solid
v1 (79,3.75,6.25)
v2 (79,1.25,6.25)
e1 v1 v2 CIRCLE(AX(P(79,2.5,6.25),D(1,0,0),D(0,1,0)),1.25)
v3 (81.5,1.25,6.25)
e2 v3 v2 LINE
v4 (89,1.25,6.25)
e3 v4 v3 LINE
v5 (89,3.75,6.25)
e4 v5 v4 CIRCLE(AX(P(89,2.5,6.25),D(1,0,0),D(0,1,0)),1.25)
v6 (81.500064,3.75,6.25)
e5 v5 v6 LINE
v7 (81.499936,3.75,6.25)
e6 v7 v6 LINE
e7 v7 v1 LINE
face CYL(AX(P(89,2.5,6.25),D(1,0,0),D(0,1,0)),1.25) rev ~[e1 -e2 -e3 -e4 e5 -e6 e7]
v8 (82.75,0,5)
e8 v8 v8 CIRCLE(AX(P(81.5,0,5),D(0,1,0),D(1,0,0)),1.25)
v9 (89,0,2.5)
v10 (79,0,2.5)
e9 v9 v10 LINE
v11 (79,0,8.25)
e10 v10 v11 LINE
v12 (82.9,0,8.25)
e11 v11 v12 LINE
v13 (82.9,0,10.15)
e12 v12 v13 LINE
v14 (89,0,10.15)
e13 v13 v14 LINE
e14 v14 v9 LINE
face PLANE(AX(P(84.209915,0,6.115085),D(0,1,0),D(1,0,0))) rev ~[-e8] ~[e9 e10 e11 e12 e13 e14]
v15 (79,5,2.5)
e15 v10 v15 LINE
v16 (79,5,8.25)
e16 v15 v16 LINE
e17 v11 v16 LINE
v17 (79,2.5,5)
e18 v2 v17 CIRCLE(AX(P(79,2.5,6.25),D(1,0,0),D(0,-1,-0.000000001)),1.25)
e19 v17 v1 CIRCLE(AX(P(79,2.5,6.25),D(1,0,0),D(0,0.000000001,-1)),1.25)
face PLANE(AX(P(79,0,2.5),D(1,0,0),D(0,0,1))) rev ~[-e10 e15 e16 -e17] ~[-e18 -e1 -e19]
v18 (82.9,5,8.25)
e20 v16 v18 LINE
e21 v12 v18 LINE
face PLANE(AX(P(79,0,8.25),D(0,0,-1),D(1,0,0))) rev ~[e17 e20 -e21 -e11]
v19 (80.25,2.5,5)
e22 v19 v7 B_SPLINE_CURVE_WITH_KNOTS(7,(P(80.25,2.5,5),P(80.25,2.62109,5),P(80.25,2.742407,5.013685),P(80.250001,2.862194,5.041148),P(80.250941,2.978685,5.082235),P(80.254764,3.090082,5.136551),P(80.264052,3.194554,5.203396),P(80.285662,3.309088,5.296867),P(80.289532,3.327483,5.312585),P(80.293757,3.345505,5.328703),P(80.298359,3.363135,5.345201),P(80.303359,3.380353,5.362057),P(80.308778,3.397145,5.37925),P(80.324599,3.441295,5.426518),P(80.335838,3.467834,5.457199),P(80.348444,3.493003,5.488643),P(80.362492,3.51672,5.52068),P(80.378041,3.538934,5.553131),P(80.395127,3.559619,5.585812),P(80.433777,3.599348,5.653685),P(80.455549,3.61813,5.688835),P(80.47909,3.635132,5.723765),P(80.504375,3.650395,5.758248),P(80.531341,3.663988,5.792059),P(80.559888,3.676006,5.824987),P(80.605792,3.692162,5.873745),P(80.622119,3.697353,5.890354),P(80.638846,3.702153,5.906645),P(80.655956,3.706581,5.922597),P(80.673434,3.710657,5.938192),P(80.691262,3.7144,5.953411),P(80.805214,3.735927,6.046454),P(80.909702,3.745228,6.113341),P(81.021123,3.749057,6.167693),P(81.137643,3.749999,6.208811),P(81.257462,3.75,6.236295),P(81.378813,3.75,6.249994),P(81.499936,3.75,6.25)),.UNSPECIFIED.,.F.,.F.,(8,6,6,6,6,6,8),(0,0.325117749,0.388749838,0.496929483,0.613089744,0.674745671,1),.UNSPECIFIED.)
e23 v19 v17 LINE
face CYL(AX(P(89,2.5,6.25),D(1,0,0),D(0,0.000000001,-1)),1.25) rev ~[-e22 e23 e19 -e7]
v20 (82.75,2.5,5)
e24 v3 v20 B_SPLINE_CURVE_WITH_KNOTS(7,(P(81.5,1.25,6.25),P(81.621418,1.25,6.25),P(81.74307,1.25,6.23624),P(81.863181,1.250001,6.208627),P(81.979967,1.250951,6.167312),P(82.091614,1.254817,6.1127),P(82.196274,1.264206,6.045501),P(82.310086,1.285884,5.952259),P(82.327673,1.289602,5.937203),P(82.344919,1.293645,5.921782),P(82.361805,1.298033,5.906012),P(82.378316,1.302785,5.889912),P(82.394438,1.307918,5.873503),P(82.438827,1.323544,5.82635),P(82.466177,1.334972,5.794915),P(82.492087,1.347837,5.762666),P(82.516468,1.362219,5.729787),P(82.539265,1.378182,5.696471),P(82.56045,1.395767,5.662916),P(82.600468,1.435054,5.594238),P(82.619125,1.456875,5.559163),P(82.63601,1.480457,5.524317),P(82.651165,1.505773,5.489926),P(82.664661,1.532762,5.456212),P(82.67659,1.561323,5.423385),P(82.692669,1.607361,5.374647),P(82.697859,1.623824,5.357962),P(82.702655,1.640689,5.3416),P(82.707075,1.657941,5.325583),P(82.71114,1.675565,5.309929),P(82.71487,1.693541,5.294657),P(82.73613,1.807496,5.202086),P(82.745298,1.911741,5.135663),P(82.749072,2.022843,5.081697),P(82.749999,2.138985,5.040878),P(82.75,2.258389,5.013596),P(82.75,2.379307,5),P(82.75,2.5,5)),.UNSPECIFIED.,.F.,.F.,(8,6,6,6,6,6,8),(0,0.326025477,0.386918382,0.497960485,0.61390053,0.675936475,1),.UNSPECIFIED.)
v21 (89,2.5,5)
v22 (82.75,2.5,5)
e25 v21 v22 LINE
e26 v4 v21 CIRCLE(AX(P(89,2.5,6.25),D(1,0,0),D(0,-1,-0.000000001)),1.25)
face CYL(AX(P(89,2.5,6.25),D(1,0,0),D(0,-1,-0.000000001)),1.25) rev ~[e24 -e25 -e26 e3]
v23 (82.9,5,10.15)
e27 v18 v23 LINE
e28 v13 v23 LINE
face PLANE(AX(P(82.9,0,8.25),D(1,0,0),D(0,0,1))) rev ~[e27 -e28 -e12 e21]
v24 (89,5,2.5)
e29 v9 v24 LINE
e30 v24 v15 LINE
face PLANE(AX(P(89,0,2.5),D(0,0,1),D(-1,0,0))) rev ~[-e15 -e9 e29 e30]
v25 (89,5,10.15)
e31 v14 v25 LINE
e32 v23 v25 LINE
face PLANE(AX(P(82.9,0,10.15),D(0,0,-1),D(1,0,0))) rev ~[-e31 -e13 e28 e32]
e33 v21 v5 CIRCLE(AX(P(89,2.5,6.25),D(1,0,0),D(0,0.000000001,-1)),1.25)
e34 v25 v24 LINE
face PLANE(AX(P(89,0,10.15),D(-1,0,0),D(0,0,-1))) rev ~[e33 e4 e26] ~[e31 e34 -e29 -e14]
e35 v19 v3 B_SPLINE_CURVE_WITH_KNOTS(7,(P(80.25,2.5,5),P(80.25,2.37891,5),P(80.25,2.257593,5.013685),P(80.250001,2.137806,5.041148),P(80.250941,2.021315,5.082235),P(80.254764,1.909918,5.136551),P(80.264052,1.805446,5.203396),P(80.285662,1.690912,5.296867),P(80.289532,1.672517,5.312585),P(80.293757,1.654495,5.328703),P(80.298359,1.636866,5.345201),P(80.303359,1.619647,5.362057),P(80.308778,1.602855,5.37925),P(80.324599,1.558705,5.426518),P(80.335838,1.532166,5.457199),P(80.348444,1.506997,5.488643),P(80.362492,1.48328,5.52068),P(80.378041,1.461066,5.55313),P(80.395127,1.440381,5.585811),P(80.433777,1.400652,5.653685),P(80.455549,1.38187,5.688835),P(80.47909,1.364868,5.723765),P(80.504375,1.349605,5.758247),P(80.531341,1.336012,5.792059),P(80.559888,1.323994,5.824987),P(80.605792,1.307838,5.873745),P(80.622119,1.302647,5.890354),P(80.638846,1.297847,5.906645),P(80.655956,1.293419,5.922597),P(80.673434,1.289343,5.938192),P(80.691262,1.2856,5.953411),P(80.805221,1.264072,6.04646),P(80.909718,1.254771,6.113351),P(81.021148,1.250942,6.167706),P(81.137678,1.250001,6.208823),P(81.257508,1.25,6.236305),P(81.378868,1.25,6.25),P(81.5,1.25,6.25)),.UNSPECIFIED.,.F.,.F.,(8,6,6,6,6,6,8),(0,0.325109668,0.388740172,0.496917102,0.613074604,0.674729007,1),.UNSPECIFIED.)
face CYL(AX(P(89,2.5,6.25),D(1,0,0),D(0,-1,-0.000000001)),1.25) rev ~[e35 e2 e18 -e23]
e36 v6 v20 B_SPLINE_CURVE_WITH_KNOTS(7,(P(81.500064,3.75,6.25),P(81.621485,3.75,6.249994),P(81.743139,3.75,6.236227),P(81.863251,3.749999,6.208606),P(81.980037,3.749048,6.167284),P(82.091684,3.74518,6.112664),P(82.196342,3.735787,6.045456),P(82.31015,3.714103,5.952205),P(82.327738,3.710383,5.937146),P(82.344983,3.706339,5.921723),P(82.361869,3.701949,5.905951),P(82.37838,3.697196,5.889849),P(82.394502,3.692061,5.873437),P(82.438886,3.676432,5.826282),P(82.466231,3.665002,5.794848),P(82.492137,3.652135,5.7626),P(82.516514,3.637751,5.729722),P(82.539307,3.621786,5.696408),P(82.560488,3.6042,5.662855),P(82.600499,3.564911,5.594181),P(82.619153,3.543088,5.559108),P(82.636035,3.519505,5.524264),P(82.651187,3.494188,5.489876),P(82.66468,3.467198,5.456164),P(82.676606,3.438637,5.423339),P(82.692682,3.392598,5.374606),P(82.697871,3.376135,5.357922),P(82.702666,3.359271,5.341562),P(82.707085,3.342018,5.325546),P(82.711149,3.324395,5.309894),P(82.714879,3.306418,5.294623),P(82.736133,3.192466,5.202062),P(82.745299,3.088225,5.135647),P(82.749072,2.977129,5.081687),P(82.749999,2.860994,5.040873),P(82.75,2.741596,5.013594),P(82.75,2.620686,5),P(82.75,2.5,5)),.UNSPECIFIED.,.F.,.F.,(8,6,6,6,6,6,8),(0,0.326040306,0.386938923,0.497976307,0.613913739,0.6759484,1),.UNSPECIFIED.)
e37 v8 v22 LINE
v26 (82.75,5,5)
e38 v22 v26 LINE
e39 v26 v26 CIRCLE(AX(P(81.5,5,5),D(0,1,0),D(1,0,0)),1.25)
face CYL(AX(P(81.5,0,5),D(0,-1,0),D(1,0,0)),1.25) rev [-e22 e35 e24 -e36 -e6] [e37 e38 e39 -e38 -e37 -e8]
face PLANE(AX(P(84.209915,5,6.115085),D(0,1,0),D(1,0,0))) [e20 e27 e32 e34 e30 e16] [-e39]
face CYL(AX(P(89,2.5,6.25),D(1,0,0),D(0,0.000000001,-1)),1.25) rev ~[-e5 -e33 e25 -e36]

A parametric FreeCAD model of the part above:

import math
import FreeCAD as App
import Part
import Sketcher

doc = App.newDocument("Part")
params = doc.addObject("Spreadsheet::Sheet", "Params")
for row, (alias, value) in enumerate([
    ("sketch1_diameter", "2.5 mm"),
    ("sketch1_width", "10 mm"),
    ("sketch1_width2", "3.9 mm"),
    ("sketch1_height", "1.9 mm"),
    ("sketch1_height2", "5.75 mm"),
    ("pad1_length", "5 mm"),
    ("sketch2_radius", "1.25 mm"),
    ("pocket1_length", "10 mm"),
], start=1):
    params.set(f"A{row}", alias)
    params.set(f"B{row}", "=" + value)
    params.setAlias(f"B{row}", alias)

body = doc.addObject("PartDesign::Body", "Body")

sketch1 = doc.addObject("Sketcher::SketchObject", "Sketch")
body.addObject(sketch1)
sketch1.AttachmentSupport = (doc.XZ_Plane, [""])
sketch1.MapMode = "FlatFace"
sketch1.addGeometry([
    Part.LineSegment(App.Vector(79, 2.5, 0), App.Vector(79, 8.25, 0)),
    Part.LineSegment(App.Vector(79, 8.25, 0), App.Vector(82.9, 8.25, 0)),
    Part.LineSegment(App.Vector(82.9, 8.25, 0), App.Vector(82.9, 10.15, 0)),
    Part.LineSegment(App.Vector(82.9, 10.15, 0), App.Vector(89, 10.15, 0)),
    Part.LineSegment(App.Vector(89, 10.15, 0), App.Vector(89, 2.5, 0)),
    Part.LineSegment(App.Vector(89, 2.5, 0), App.Vector(79, 2.5, 0)),
    Part.Circle(App.Vector(81.5, 5, 0), App.Vector(0, 0, 1), 1.25),
], False)
sketch1.addConstraint([
    Sketcher.Constraint("Coincident", 0, 2, 1, 1),
    Sketcher.Constraint("Coincident", 1, 2, 2, 1),
    Sketcher.Constraint("Coincident", 2, 2, 3, 1),
    Sketcher.Constraint("Coincident", 3, 2, 4, 1),
    Sketcher.Constraint("Coincident", 4, 2, 5, 1),
    Sketcher.Constraint("Coincident", 5, 2, 0, 1),
    Sketcher.Constraint("Vertical", 0),
    Sketcher.Constraint("Horizontal", 1),
    Sketcher.Constraint("Vertical", 2),
    Sketcher.Constraint("Horizontal", 3),
    Sketcher.Constraint("Vertical", 4),
    Sketcher.Constraint("Horizontal", 5),
    Sketcher.Constraint("Diameter", 6, 2.5),
    Sketcher.Constraint("DistanceX", 5, 2, 5, 1, 10.0),
    Sketcher.Constraint("DistanceX", 1, 1, 1, 2, 3.9),
    Sketcher.Constraint("DistanceY", 2, 1, 2, 2, 1.9),
    Sketcher.Constraint("DistanceY", -1, 1, 6, 3, 5.0),
    Sketcher.Constraint("DistanceX", -1, 1, 0, 2, 79.0),
    Sketcher.Constraint("DistanceY", 0, 1, 0, 2, 5.75),
    Sketcher.Constraint("DistanceX", -1, 1, 6, 3, 81.5),
    Sketcher.Constraint("DistanceY", -1, 1, 4, 2, 2.5),
])
sketch1.setExpression("Constraints[12]", "Params.sketch1_diameter")
sketch1.setExpression("Constraints[13]", "Params.sketch1_width")
sketch1.setExpression("Constraints[14]", "Params.sketch1_width2")
sketch1.setExpression("Constraints[15]", "Params.sketch1_height")
sketch1.setExpression("Constraints[18]", "Params.sketch1_height2")
pad1 = doc.addObject("PartDesign::Pad", "Pad")
body.addObject(pad1)
pad1.Profile = sketch1
pad1.setExpression("Length", "Params.pad1_length")
pad1.Reversed = True

sketch2 = doc.addObject("Sketcher::SketchObject", "Sketch001")
body.addObject(sketch2)
sketch2.AttachmentSupport = (doc.YZ_Plane, [""])
sketch2.MapMode = "FlatFace"
sketch2.AttachmentOffset = App.Placement(App.Vector(0, 0, 89), App.Rotation())
sketch2.addGeometry([
    Part.ArcOfCircle(Part.Circle(App.Vector(2.5, 6.25, 0), App.Vector(0, 0, 1), 1.25), math.radians(-90), math.radians(0)),
    Part.ArcOfCircle(Part.Circle(App.Vector(2.5, 6.25, 0), App.Vector(0, 0, 1), 1.25), math.radians(0), math.radians(180)),
    Part.ArcOfCircle(Part.Circle(App.Vector(2.5, 6.25, 0), App.Vector(0, 0, 1), 1.25), math.radians(-180), math.radians(-90)),
], False)
sketch2.addConstraint([
    Sketcher.Constraint("Tangent", 0, 2, 1, 1),
    Sketcher.Constraint("Tangent", 1, 2, 2, 1),
    Sketcher.Constraint("Tangent", 2, 2, 0, 1),
    Sketcher.Constraint("Horizontal", 2, 3, 0, 2),
    Sketcher.Constraint("Horizontal", 0, 2, 1, 2),
    Sketcher.Constraint("Vertical", 1, 3, 2, 2),
    Sketcher.Constraint("Radius", 0, 1.25),
    Sketcher.Constraint("DistanceY", -1, 1, 2, 2, 5.0),
    Sketcher.Constraint("DistanceX", -1, 1, 0, 3, 2.5),
])
sketch2.setExpression("Constraints[6]", "Params.sketch2_radius")
pocket1 = doc.addObject("PartDesign::Pocket", "Pocket")
body.addObject(pocket1)
pocket1.Profile = sketch2
pocket1.setExpression("Length", "Params.pocket1_length")

doc.recompute()
